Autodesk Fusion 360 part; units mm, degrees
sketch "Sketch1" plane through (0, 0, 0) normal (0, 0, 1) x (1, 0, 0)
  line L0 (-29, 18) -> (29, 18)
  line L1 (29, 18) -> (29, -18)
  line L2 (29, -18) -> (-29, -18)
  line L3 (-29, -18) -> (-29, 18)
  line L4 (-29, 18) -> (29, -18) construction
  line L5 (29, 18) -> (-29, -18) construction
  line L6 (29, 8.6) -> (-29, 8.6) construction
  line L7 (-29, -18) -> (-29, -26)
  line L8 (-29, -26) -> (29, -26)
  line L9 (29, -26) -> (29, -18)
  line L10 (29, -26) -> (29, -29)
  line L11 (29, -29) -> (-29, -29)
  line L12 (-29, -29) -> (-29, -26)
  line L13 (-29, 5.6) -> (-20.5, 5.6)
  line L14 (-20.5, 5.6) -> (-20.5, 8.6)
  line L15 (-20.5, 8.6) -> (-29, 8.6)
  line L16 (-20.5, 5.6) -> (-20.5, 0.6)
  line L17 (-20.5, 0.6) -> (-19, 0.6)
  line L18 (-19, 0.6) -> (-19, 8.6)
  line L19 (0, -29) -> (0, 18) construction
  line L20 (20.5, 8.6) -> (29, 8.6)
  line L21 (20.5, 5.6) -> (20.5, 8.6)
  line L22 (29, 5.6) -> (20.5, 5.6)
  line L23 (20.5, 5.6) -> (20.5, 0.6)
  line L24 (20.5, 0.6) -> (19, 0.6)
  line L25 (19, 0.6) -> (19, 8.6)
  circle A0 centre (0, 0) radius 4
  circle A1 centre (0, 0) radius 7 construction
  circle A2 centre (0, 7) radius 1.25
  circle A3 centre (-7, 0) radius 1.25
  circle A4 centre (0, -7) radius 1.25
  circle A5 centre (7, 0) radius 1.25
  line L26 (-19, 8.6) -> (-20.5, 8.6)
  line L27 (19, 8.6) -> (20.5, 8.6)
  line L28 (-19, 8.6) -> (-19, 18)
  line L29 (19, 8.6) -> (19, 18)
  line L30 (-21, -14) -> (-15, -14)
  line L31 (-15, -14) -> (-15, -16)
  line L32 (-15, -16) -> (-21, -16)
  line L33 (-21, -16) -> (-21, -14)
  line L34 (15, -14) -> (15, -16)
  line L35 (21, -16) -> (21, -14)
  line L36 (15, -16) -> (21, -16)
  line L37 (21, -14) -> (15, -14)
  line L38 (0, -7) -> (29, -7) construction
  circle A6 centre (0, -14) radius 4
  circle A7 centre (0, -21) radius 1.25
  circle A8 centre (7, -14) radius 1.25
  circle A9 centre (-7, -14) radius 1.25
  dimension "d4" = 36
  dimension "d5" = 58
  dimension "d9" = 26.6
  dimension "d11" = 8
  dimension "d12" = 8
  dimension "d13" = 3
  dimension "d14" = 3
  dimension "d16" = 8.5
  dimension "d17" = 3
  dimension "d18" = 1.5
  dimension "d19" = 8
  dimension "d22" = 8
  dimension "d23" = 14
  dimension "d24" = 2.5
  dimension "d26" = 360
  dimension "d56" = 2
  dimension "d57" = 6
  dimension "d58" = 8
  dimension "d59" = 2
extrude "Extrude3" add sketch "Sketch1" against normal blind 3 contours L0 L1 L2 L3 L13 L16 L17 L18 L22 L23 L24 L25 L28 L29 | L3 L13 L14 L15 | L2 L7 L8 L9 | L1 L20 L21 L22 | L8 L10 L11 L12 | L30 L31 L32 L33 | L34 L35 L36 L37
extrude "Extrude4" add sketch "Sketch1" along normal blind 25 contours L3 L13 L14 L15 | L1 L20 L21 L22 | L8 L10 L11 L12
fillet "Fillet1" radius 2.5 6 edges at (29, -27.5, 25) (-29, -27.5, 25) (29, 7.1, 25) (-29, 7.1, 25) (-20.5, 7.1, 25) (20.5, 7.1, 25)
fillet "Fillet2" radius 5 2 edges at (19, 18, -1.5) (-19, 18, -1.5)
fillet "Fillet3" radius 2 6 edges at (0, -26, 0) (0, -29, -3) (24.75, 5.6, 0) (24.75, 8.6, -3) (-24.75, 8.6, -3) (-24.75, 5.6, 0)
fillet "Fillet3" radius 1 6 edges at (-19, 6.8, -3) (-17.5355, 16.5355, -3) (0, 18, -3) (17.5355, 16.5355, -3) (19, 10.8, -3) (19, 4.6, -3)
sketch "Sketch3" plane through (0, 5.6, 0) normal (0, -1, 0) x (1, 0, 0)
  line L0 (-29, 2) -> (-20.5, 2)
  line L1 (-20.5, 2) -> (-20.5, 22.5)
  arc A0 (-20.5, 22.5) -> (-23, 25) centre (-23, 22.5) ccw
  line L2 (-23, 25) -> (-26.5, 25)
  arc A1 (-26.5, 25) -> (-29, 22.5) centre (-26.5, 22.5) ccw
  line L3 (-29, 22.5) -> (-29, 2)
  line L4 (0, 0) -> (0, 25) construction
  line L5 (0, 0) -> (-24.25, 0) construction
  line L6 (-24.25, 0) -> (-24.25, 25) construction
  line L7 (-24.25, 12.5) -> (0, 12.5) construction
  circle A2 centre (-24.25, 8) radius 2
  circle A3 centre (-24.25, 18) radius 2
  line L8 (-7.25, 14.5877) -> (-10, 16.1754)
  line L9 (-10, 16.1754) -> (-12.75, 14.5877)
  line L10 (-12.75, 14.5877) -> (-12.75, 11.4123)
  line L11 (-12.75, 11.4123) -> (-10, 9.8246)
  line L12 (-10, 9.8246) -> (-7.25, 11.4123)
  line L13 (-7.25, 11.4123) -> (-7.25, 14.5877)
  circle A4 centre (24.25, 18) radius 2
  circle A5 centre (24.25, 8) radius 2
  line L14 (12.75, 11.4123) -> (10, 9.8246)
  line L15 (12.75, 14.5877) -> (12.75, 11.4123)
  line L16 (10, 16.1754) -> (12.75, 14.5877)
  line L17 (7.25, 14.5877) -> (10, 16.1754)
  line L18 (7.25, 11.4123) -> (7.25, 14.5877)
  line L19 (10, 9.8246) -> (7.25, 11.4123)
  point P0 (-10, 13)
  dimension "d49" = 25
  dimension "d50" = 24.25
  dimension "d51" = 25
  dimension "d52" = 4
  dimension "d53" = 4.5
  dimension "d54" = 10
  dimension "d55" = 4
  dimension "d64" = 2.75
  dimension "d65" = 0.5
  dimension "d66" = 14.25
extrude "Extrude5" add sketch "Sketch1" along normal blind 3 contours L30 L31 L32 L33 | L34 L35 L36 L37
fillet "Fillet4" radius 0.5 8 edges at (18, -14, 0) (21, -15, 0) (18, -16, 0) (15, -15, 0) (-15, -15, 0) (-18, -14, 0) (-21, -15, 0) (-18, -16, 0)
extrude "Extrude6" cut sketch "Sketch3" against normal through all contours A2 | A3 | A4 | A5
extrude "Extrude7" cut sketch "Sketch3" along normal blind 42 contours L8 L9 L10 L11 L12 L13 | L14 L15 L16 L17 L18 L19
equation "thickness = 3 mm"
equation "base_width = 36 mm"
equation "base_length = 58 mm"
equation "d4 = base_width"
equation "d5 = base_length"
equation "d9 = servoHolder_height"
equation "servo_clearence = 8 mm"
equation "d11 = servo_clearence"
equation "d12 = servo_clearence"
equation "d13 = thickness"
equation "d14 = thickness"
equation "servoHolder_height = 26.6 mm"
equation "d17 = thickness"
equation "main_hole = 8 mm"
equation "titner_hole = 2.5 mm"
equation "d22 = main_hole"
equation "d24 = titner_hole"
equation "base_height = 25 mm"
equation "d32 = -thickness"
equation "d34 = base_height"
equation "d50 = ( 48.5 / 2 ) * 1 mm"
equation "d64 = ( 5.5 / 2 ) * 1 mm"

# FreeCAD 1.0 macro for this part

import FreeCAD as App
import Part
import Sketcher

V = App.Vector
Q = App.Units.Quantity


def edges_at(feature, points):
    """Names of the edges that pass closest to the given points."""
    edges = feature.Shape.Edges
    near = lambda p: min(range(len(edges)), key=lambda i: edges[i].distToShape(Part.Vertex(*p))[0])
    return sorted({f"Edge{near(p) + 1}" for p in points})

doc = App.newDocument("Part")
params = doc.addObject("Spreadsheet::Sheet", "Params")
for row, (alias, value) in enumerate([
    ("sketch1_diameter", "8 mm"),
    ("sketch1_diameter2", "2.5 mm"),
    ("sketch1_width", "58 mm"),
    ("sketch1_height", "8 mm"),
    ("sketch1_width2", "1.5 mm"),
    ("pad1_length", "3 mm"),
    ("sketch2_width", "58 mm"),
    ("sketch2_height", "3 mm"),
    ("sketch2_width2", "8.5 mm"),
    ("pad2_length", "25 mm"),
    ("fillet_radius", "2.5 mm"),
    ("fillet2_radius", "5 mm"),
    ("fillet3_radius", "2 mm"),
    ("fillet4_radius", "1 mm"),
    ("sketch3_width", "6 mm"),
    ("sketch3_height", "2 mm"),
    ("pad3_length", "3 mm"),
    ("fillet5_radius", "0.5 mm"),
    ("sketch4_diameter", "4 mm"),
    ("pocket2_length", "42 mm"),
], start=1):
    params.set(f"A{row}", alias)
    params.set(f"B{row}", "=" + value)
    params.setAlias(f"B{row}", alias)

body = doc.addObject("PartDesign::Body", "Body")

sketch1 = body.newObject("Sketcher::SketchObject", "Sketch")
sketch1.AttachmentSupport = (doc.getObject("XY_Plane"), [""])
sketch1.MapMode = "FlatFace"
sketch1.addGeometry(Part.LineSegment(V(19, 18, 0), V(-19, 18, 0)), False)
sketch1.addGeometry(Part.LineSegment(V(-19, 18, 0), V(-19, 0.6, 0)), False)
sketch1.addGeometry(Part.LineSegment(V(-19, 0.6, 0), V(-20.5, 0.6, 0)), False)
sketch1.addGeometry(Part.LineSegment(V(-20.5, 0.6, 0), V(-20.5, 8.6, 0)), False)
sketch1.addGeometry(Part.LineSegment(V(-20.5, 8.6, 0), V(-29, 8.6, 0)), False)
sketch1.addGeometry(Part.LineSegment(V(-29, 8.6, 0), V(-29, -29, 0)), False)
sketch1.addGeometry(Part.LineSegment(V(-29, -29, 0), V(29, -29, 0)), False)
sketch1.addGeometry(Part.LineSegment(V(29, -29, 0), V(29, 8.6, 0)), False)
sketch1.addGeometry(Part.LineSegment(V(29, 8.6, 0), V(20.5, 8.6, 0)), False)
sketch1.addGeometry(Part.LineSegment(V(20.5, 8.6, 0), V(20.5, 0.6, 0)), False)
sketch1.addGeometry(Part.LineSegment(V(20.5, 0.6, 0), V(19, 0.6, 0)), False)
sketch1.addGeometry(Part.LineSegment(V(19, 0.6, 0), V(19, 18, 0)), False)
sketch1.addGeometry(Part.Circle(V(-7, -14, 0), V(0, 0, 1), 1.2), False)
sketch1.addGeometry(Part.Circle(V(0, -14, 0), V(0, 0, 1), 4), False)
sketch1.addGeometry(Part.Circle(V(7, -14, 0), V(0, 0, 1), 1.2), False)
sketch1.addGeometry(Part.Circle(V(0, -7, 0), V(0, 0, 1), 1.2), False)
sketch1.addGeometry(Part.Circle(V(-7, 0, 0), V(0, 0, 1), 1.2), False)
sketch1.addGeometry(Part.Circle(V(0, 0, 0), V(0, 0, 1), 4), False)
sketch1.addGeometry(Part.Circle(V(7, 0, 0), V(0, 0, 1), 1.2), False)
sketch1.addGeometry(Part.Circle(V(0, 7, 0), V(0, 0, 1), 1.2), False)
sketch1.addGeometry(Part.Circle(V(0, -21, 0), V(0, 0, 1), 1.2), False)
sketch1.addConstraint(Sketcher.Constraint("Coincident", 0, 2, 1, 1))
sketch1.addConstraint(Sketcher.Constraint("Coincident", 1, 2, 2, 1))
sketch1.addConstraint(Sketcher.Constraint("Coincident", 2, 2, 3, 1))
sketch1.addConstraint(Sketcher.Constraint("Coincident", 3, 2, 4, 1))
sketch1.addConstraint(Sketcher.Constraint("Coincident", 4, 2, 5, 1))
sketch1.addConstraint(Sketcher.Constraint("Coincident", 5, 2, 6, 1))
sketch1.addConstraint(Sketcher.Constraint("Coincident", 6, 2, 7, 1))
sketch1.addConstraint(Sketcher.Constraint("Coincident", 7, 2, 8, 1))
sketch1.addConstraint(Sketcher.Constraint("Coincident", 8, 2, 9, 1))
sketch1.addConstraint(Sketcher.Constraint("Coincident", 9, 2, 10, 1))
sketch1.addConstraint(Sketcher.Constraint("Coincident", 10, 2, 11, 1))
sketch1.addConstraint(Sketcher.Constraint("Coincident", 11, 2, 0, 1))
sketch1.addConstraint(Sketcher.Constraint("Horizontal", 0))
sketch1.addConstraint(Sketcher.Constraint("Vertical", 1))
sketch1.addConstraint(Sketcher.Constraint("Horizontal", 2))
sketch1.addConstraint(Sketcher.Constraint("Vertical", 3))
sketch1.addConstraint(Sketcher.Constraint("Horizontal", 4))
sketch1.addConstraint(Sketcher.Constraint("Vertical", 5))
sketch1.addConstraint(Sketcher.Constraint("Horizontal", 6))
sketch1.addConstraint(Sketcher.Constraint("Vertical", 7))
sketch1.addConstraint(Sketcher.Constraint("Horizontal", 8))
sketch1.addConstraint(Sketcher.Constraint("Vertical", 9))
sketch1.addConstraint(Sketcher.Constraint("Horizontal", 10))
sketch1.addConstraint(Sketcher.Constraint("Vertical", 11))
sketch1.addConstraint(Sketcher.Constraint("Coincident", 17, 3, -1, 1))
sketch1.addConstraint(Sketcher.Constraint("Equal", 12, 14))
sketch1.addConstraint(Sketcher.Constraint("Equal", 14, 15))
sketch1.addConstraint(Sketcher.Constraint("Equal", 15, 16))
sketch1.addConstraint(Sketcher.Constraint("Equal", 13, 17))
sketch1.addConstraint(Sketcher.Constraint("Equal", 16, 18))
sketch1.addConstraint(Sketcher.Constraint("Equal", 18, 19))
sketch1.addConstraint(Sketcher.Constraint("Equal", 19, 20))
sketch1.addConstraint(Sketcher.Constraint("Symmetric", 16, 3, 18, 3, -1, 1))
sketch1.addConstraint(Sketcher.Constraint("Symmetric", 15, 3, 19, 3, -1, 1))
sketch1.addConstraint(Sketcher.Constraint("Symmetric", 12, 3, 14, 3, -2))
sketch1.addConstraint(Sketcher.Constraint("Symmetric", 4, 2, 7, 2, -2))
sketch1.addConstraint(Sketcher.Constraint("Symmetric", 2, 2, 9, 2, -2))
sketch1.addConstraint(Sketcher.Constraint("PointOnObject", 13, 3, -2))
sketch1.addConstraint(Sketcher.Constraint("PointOnObject", 15, 3, -2))
sketch1.addConstraint(Sketcher.Constraint("PointOnObject", 16, 3, -1))
sketch1.addConstraint(Sketcher.Constraint("PointOnObject", 20, 3, -2))
sketch1.addConstraint(Sketcher.Constraint("Horizontal", 12, 3, 13, 3))
sketch1.addConstraint(Sketcher.Constraint("Vertical", 12, 3, 16, 3))
sketch1.addConstraint(Sketcher.Constraint("Equal", 2, 10))
sketch1.addConstraint(Sketcher.Constraint("Diameter", 13, Q("8 mm")))
sketch1.addConstraint(Sketcher.Constraint("Diameter", 12, Q("2.5 mm")))
sketch1.addConstraint(Sketcher.Constraint("DistanceX", 6, 1, 6, 2, Q("58 mm")))
sketch1.addConstraint(Sketcher.Constraint("DistanceY", 3, 1, 3, 2, Q("8 mm")))
sketch1.addConstraint(Sketcher.Constraint("DistanceX", 2, 2, 2, 1, Q("1.5 mm")))
sketch1.addConstraint(Sketcher.Constraint("DistanceX", 4, 2, 4, 1, Q("8.5 mm")))
sketch1.addConstraint(Sketcher.Constraint("DistanceY", 12, 3, -1, 1, Q("14 mm")))
sketch1.addConstraint(Sketcher.Constraint("DistanceX", 12, 3, 14, 3, Q("14 mm")))
sketch1.addConstraint(Sketcher.Constraint("DistanceY", 15, 3, 19, 3, Q("14 mm")))
sketch1.addConstraint(Sketcher.Constraint("DistanceY", 20, 3, 15, 3, Q("14 mm")))
sketch1.addConstraint(Sketcher.Constraint("DistanceY", 5, 2, 20, 3, Q("8 mm")))
sketch1.addConstraint(Sketcher.Constraint("DistanceY", 1, 2, 1, 1, Q("17.4 mm")))
sketch1.addConstraint(Sketcher.Constraint("DistanceY", 5, 2, 5, 1, Q("37.6 mm")))
sketch1.setExpression("Constraints[44]", "Params.sketch1_diameter")
sketch1.setExpression("Constraints[45]", "Params.sketch1_diameter2")
sketch1.setExpression("Constraints[46]", "Params.sketch1_width")
sketch1.setExpression("Constraints[47]", "Params.sketch1_height")
sketch1.setExpression("Constraints[48]", "Params.sketch1_width2")
pad1 = body.newObject("PartDesign::Pad", "Pad")
pad1.Profile = sketch1
pad1.setExpression("Length", "Params.pad1_length")
pad1.Reversed = True

sketch2 = body.newObject("Sketcher::SketchObject", "Sketch001")
sketch2.AttachmentSupport = (doc.getObject("XY_Plane"), [""])
sketch2.MapMode = "FlatFace"
sketch2.addGeometry(Part.LineSegment(V(-20.5, 8.6, 0), V(-29, 8.6, 0)), False)
sketch2.addGeometry(Part.LineSegment(V(-29, 8.6, 0), V(-29, 5.6, 0)), False)
sketch2.addGeometry(Part.LineSegment(V(-29, 5.6, 0), V(-20.5, 5.6, 0)), False)
sketch2.addGeometry(Part.LineSegment(V(-20.5, 5.6, 0), V(-20.5, 8.6, 0)), False)
sketch2.addGeometry(Part.LineSegment(V(29, 5.6, 0), V(29, 8.6, 0)), False)
sketch2.addGeometry(Part.LineSegment(V(29, 8.6, 0), V(20.5, 8.6, 0)), False)
sketch2.addGeometry(Part.LineSegment(V(20.5, 8.6, 0), V(20.5, 5.6, 0)), False)
sketch2.addGeometry(Part.LineSegment(V(20.5, 5.6, 0), V(29, 5.6, 0)), False)
sketch2.addGeometry(Part.LineSegment(V(29, -26, 0), V(-29, -26, 0)), False)
sketch2.addGeometry(Part.LineSegment(V(-29, -26, 0), V(-29, -29, 0)), False)
sketch2.addGeometry(Part.LineSegment(V(-29, -29, 0), V(29, -29, 0)), False)
sketch2.addGeometry(Part.LineSegment(V(29, -29, 0), V(29, -26, 0)), False)
sketch2.addConstraint(Sketcher.Constraint("Coincident", 0, 2, 1, 1))
sketch2.addConstraint(Sketcher.Constraint("Coincident", 1, 2, 2, 1))
sketch2.addConstraint(Sketcher.Constraint("Coincident", 2, 2, 3, 1))
sketch2.addConstraint(Sketcher.Constraint("Coincident", 3, 2, 0, 1))
sketch2.addConstraint(Sketcher.Constraint("Coincident", 4, 2, 5, 1))
sketch2.addConstraint(Sketcher.Constraint("Coincident", 5, 2, 6, 1))
sketch2.addConstraint(Sketcher.Constraint("Coincident", 6, 2, 7, 1))
sketch2.addConstraint(Sketcher.Constraint("Coincident", 7, 2, 4, 1))
sketch2.addConstraint(Sketcher.Constraint("Coincident", 8, 2, 9, 1))
sketch2.addConstraint(Sketcher.Constraint("Coincident", 9, 2, 10, 1))
sketch2.addConstraint(Sketcher.Constraint("Coincident", 10, 2, 11, 1))
sketch2.addConstraint(Sketcher.Constraint("Coincident", 11, 2, 8, 1))
sketch2.addConstraint(Sketcher.Constraint("Horizontal", 0))
sketch2.addConstraint(Sketcher.Constraint("Vertical", 1))
sketch2.addConstraint(Sketcher.Constraint("Horizontal", 2))
sketch2.addConstraint(Sketcher.Constraint("Vertical", 3))
sketch2.addConstraint(Sketcher.Constraint("Vertical", 4))
sketch2.addConstraint(Sketcher.Constraint("Horizontal", 5))
sketch2.addConstraint(Sketcher.Constraint("Vertical", 6))
sketch2.addConstraint(Sketcher.Constraint("Horizontal", 7))
sketch2.addConstraint(Sketcher.Constraint("Horizontal", 8))
sketch2.addConstraint(Sketcher.Constraint("Vertical", 9))
sketch2.addConstraint(Sketcher.Constraint("Horizontal", 10))
sketch2.addConstraint(Sketcher.Constraint("Vertical", 11))
sketch2.addConstraint(Sketcher.Constraint("Symmetric", 0, 2, 4, 2, -2))
sketch2.addConstraint(Sketcher.Constraint("Symmetric", 2, 2, 6, 2, -2))
sketch2.addConstraint(Sketcher.Constraint("Vertical", 1, 2, 8, 2))
sketch2.addConstraint(Sketcher.Constraint("Vertical", 7, 2, 10, 2))
sketch2.addConstraint(Sketcher.Constraint("Equal", 6, 9))
sketch2.addConstraint(Sketcher.Constraint("DistanceX", 8, 2, 8, 1, Q("58 mm")))
sketch2.addConstraint(Sketcher.Constraint("DistanceY", 1, 2, 1, 1, Q("3 mm")))
sketch2.addConstraint(Sketcher.Constraint("DistanceX", 0, 2, 0, 1, Q("8.5 mm")))
sketch2.addConstraint(Sketcher.Constraint("DistanceY", 8, 2, -1, 1, Q("26 mm")))
sketch2.addConstraint(Sketcher.Constraint("DistanceY", -1, 1, 0, 2, Q("8.6 mm")))
sketch2.setExpression("Constraints[29]", "Params.sketch2_width")
sketch2.setExpression("Constraints[30]", "Params.sketch2_height")
sketch2.setExpression("Constraints[31]", "Params.sketch2_width2")
pad2 = body.newObject("PartDesign::Pad", "Pad001")
pad2.Profile = sketch2
pad2.setExpression("Length", "Params.pad2_length")
doc.recompute()

fillet = body.newObject("PartDesign::Fillet", "Fillet")
fillet.Base = (pad2, edges_at(pad2, [
    (29, -27.5, 25),
    (-29, -27.5, 25),
    (29, 7.1, 25),
    (-29, 7.1, 25),
    (-20.5, 7.1, 25),
    (20.5, 7.1, 25),
]))
fillet.setExpression("Radius", "Params.fillet_radius")
doc.recompute()

fillet2 = body.newObject("PartDesign::Fillet", "Fillet001")
fillet2.Base = (fillet, edges_at(fillet, [(19, 18, -1.5), (-19, 18, -1.5)]))
fillet2.setExpression("Radius", "Params.fillet2_radius")
doc.recompute()

fillet3 = body.newObject("PartDesign::Fillet", "Fillet002")
fillet3.Base = (fillet2, edges_at(fillet2, [
    (0, -26, 0),
    (0, -29, -3),
    (24.75, 5.6, 0),
    (24.75, 8.6, -3),
    (-24.75, 8.6, -3),
    (-24.75, 5.6, 0),
]))
fillet3.setExpression("Radius", "Params.fillet3_radius")
doc.recompute()

fillet4 = body.newObject("PartDesign::Fillet", "Fillet003")
fillet4.Base = (fillet3, edges_at(fillet3, [
    (-19, 6.8, -3),
    (-17.535, 16.535, -3),
    (0, 18, -3),
    (17.535, 16.535, -3),
    (19, 10.8, -3),
    (19, 4.6, -3),
]))
fillet4.setExpression("Radius", "Params.fillet4_radius")

sketch3 = body.newObject("Sketcher::SketchObject", "Sketch002")
sketch3.AttachmentSupport = (doc.getObject("XY_Plane"), [""])
sketch3.MapMode = "FlatFace"
sketch3.addGeometry(Part.LineSegment(V(-15, -14, 0), V(-21, -14, 0)), False)
sketch3.addGeometry(Part.LineSegment(V(-21, -14, 0), V(-21, -16, 0)), False)
sketch3.addGeometry(Part.LineSegment(V(-21, -16, 0), V(-15, -16, 0)), False)
sketch3.addGeometry(Part.LineSegment(V(-15, -16, 0), V(-15, -14, 0)), False)
sketch3.addGeometry(Part.LineSegment(V(21, -14, 0), V(15, -14, 0)), False)
sketch3.addGeometry(Part.LineSegment(V(15, -14, 0), V(15, -16, 0)), False)
sketch3.addGeometry(Part.LineSegment(V(15, -16, 0), V(21, -16, 0)), False)
sketch3.addGeometry(Part.LineSegment(V(21, -16, 0), V(21, -14, 0)), False)
sketch3.addConstraint(Sketcher.Constraint("Coincident", 0, 2, 1, 1))
sketch3.addConstraint(Sketcher.Constraint("Coincident", 1, 2, 2, 1))
sketch3.addConstraint(Sketcher.Constraint("Coincident", 2, 2, 3, 1))
sketch3.addConstraint(Sketcher.Constraint("Coincident", 3, 2, 0, 1))
sketch3.addConstraint(Sketcher.Constraint("Coincident", 4, 2, 5, 1))
sketch3.addConstraint(Sketcher.Constraint("Coincident", 5, 2, 6, 1))
sketch3.addConstraint(Sketcher.Constraint("Coincident", 6, 2, 7, 1))
sketch3.addConstraint(Sketcher.Constraint("Coincident", 7, 2, 4, 1))
sketch3.addConstraint(Sketcher.Constraint("Horizontal", 0))
sketch3.addConstraint(Sketcher.Constraint("Vertical", 1))
sketch3.addConstraint(Sketcher.Constraint("Horizontal", 2))
sketch3.addConstraint(Sketcher.Constraint("Vertical", 3))
sketch3.addConstraint(Sketcher.Constraint("Horizontal", 4))
sketch3.addConstraint(Sketcher.Constraint("Vertical", 5))
sketch3.addConstraint(Sketcher.Constraint("Horizontal", 6))
sketch3.addConstraint(Sketcher.Constraint("Vertical", 7))
sketch3.addConstraint(Sketcher.Constraint("Symmetric", 3, 2, 4, 2, -2))
sketch3.addConstraint(Sketcher.Constraint("Symmetric", 1, 2, 6, 2, -2))
sketch3.addConstraint(Sketcher.Constraint("DistanceX", 0, 2, 0, 1, Q("6 mm")))
sketch3.addConstraint(Sketcher.Constraint("DistanceY", 1, 2, 1, 1, Q("2 mm")))
sketch3.addConstraint(Sketcher.Constraint("DistanceY", 0, 2, -1, 1, Q("14 mm")))
sketch3.addConstraint(Sketcher.Constraint("DistanceX", 0, 2, 4, 2, Q("36 mm")))
sketch3.setExpression("Constraints[18]", "Params.sketch3_width")
sketch3.setExpression("Constraints[19]", "Params.sketch3_height")
pad3 = body.newObject("PartDesign::Pad", "Pad002")
pad3.Profile = sketch3
pad3.setExpression("Length", "Params.pad3_length")
doc.recompute()

fillet5 = body.newObject("PartDesign::Fillet", "Fillet004")
fillet5.Base = (pad3, edges_at(pad3, [
    (18, -14, 0),
    (21, -15, 0),
    (18, -16, 0),
    (15, -15, 0),
    (-15, -15, 0),
    (-18, -14, 0),
    (-21, -15, 0),
    (-18, -16, 0),
]))
fillet5.setExpression("Radius", "Params.fillet5_radius")

sketch4 = body.newObject("Sketcher::SketchObject", "Sketch003")
sketch4.AttachmentSupport = (doc.getObject("XZ_Plane"), [""])
sketch4.MapMode = "FlatFace"
sketch4.AttachmentOffset = App.Placement(V(0, 0, -5.6), App.Rotation())
sketch4.addGeometry(Part.Circle(V(-24.2, 8, 0), V(0, 0, 1), 2), False)
sketch4.addGeometry(Part.Circle(V(-24.2, 18, 0), V(0, 0, 1), 2), False)
sketch4.addGeometry(Part.Circle(V(24.2, 18, 0), V(0, 0, 1), 2), False)
sketch4.addGeometry(Part.Circle(V(24.2, 8, 0), V(0, 0, 1), 2), False)
sketch4.addConstraint(Sketcher.Constraint("Equal", 0, 1))
sketch4.addConstraint(Sketcher.Constraint("Equal", 1, 2))
sketch4.addConstraint(Sketcher.Constraint("Equal", 2, 3))
sketch4.addConstraint(Sketcher.Constraint("Symmetric", 1, 3, 2, 3, -2))
sketch4.addConstraint(Sketcher.Constraint("Symmetric", 0, 3, 3, 3, -2))
sketch4.addConstraint(Sketcher.Constraint("Vertical", 0, 3, 1, 3))
sketch4.addConstraint(Sketcher.Constraint("Diameter", 0, Q("4 mm")))
sketch4.addConstraint(Sketcher.Constraint("DistanceY", 0, 3, 1, 3, Q("10 mm")))
sketch4.addConstraint(Sketcher.Constraint("DistanceX", 0, 3, -1, 1, Q("24.25 mm")))
sketch4.addConstraint(Sketcher.Constraint("DistanceY", -1, 1, 0, 3, Q("8 mm")))
sketch4.setExpression("Constraints[6]", "Params.sketch4_diameter")
pocket1 = body.newObject("PartDesign::Pocket", "Pocket")
pocket1.Profile = sketch4
pocket1.Type = "ThroughAll"

sketch5 = body.newObject("Sketcher::SketchObject", "Sketch004")
sketch5.AttachmentSupport = (doc.getObject("XZ_Plane"), [""])
sketch5.MapMode = "FlatFace"
sketch5.AttachmentOffset = App.Placement(V(0, 0, -5.6), App.Rotation())
sketch5.addGeometry(Part.LineSegment(V(-7.2, 11.4, 0), V(-7.2, 14.6, 0)), False)
sketch5.addGeometry(Part.LineSegment(V(-7.2, 14.6, 0), V(-10, 16.2, 0)), False)
sketch5.addGeometry(Part.LineSegment(V(-10, 16.2, 0), V(-12.8, 14.6, 0)), False)
sketch5.addGeometry(Part.LineSegment(V(-12.8, 14.6, 0), V(-12.8, 11.4, 0)), False)
sketch5.addGeometry(Part.LineSegment(V(-12.8, 11.4, 0), V(-10, 9.8, 0)), False)
sketch5.addGeometry(Part.LineSegment(V(-10, 9.8, 0), V(-7.2, 11.4, 0)), False)
sketch5.addGeometry(Part.LineSegment(V(10, 9.8, 0), V(12.8, 11.4, 0)), False)
sketch5.addGeometry(Part.LineSegment(V(12.8, 11.4, 0), V(12.8, 14.6, 0)), False)
sketch5.addGeometry(Part.LineSegment(V(12.8, 14.6, 0), V(10, 16.2, 0)), False)
sketch5.addGeometry(Part.LineSegment(V(10, 16.2, 0), V(7.2, 14.6, 0)), False)
sketch5.addGeometry(Part.LineSegment(V(7.2, 14.6, 0), V(7.2, 11.4, 0)), False)
sketch5.addGeometry(Part.LineSegment(V(7.2, 11.4, 0), V(10, 9.8, 0)), False)
sketch5.addConstraint(Sketcher.Constraint("Coincident", 0, 2, 1, 1))
sketch5.addConstraint(Sketcher.Constraint("Coincident", 1, 2, 2, 1))
sketch5.addConstraint(Sketcher.Constraint("Coincident", 2, 2, 3, 1))
sketch5.addConstraint(Sketcher.Constraint("Coincident", 3, 2, 4, 1))
sketch5.addConstraint(Sketcher.Constraint("Coincident", 4, 2, 5, 1))
sketch5.addConstraint(Sketcher.Constraint("Coincident", 5, 2, 0, 1))
sketch5.addConstraint(Sketcher.Constraint("Coincident", 6, 2, 7, 1))
sketch5.addConstraint(Sketcher.Constraint("Coincident", 7, 2, 8, 1))
sketch5.addConstraint(Sketcher.Constraint("Coincident", 8, 2, 9, 1))
sketch5.addConstraint(Sketcher.Constraint("Coincident", 9, 2, 10, 1))
sketch5.addConstraint(Sketcher.Constraint("Coincident", 10, 2, 11, 1))
sketch5.addConstraint(Sketcher.Constraint("Coincident", 11, 2, 6, 1))
sketch5.addConstraint(Sketcher.Constraint("Vertical", 0))
sketch5.addConstraint(Sketcher.Constraint("Vertical", 3))
sketch5.addConstraint(Sketcher.Constraint("Vertical", 7))
sketch5.addConstraint(Sketcher.Constraint("Vertical", 10))
sketch5.addConstraint(Sketcher.Constraint("Symmetric", 3, 2, 6, 2, -2))
sketch5.addConstraint(Sketcher.Constraint("Symmetric", 1, 2, 8, 2, -2))
sketch5.addConstraint(Sketcher.Constraint("Symmetric", 0, 2, 9, 2, -2))
sketch5.addConstraint(Sketcher.Constraint("Symmetric", 4, 2, 11, 2, -2))
sketch5.addConstraint(Sketcher.Constraint("Parallel", 1, 4))
sketch5.addConstraint(Sketcher.Constraint("Parallel", 2, 5))
sketch5.addConstraint(Sketcher.Constraint("Parallel", 5, 6))
sketch5.addConstraint(Sketcher.Constraint("Parallel", 4, 8))
sketch5.addConstraint(Sketcher.Constraint("Parallel", 8, 11))
sketch5.addConstraint(Sketcher.Constraint("Horizontal", 0, 2, 2, 2))
sketch5.addConstraint(Sketcher.Constraint("Horizontal", 3, 2, 5, 2))
sketch5.addConstraint(Sketcher.Constraint("DistanceX", 1, 2, -1, 1, Q("10 mm")))
sketch5.addConstraint(Sketcher.Constraint("Angle", 1, Q("150.0002 deg")))
sketch5.addConstraint(Sketcher.Constraint("DistanceX", 1, 2, 0, 2, Q("2.75 mm")))
sketch5.addConstraint(Sketcher.Constraint("DistanceY", 0, 1, 0, 2, Q("3.1754 mm")))
sketch5.addConstraint(Sketcher.Constraint("DistanceY", -1, 1, 0, 2, Q("14.5877 mm")))
pocket2 = body.newObject("PartDesign::Pocket", "Pocket001")
pocket2.Profile = sketch5
pocket2.setExpression("Length", "Params.pocket2_length")
pocket2.Reversed = True

doc.recompute()
